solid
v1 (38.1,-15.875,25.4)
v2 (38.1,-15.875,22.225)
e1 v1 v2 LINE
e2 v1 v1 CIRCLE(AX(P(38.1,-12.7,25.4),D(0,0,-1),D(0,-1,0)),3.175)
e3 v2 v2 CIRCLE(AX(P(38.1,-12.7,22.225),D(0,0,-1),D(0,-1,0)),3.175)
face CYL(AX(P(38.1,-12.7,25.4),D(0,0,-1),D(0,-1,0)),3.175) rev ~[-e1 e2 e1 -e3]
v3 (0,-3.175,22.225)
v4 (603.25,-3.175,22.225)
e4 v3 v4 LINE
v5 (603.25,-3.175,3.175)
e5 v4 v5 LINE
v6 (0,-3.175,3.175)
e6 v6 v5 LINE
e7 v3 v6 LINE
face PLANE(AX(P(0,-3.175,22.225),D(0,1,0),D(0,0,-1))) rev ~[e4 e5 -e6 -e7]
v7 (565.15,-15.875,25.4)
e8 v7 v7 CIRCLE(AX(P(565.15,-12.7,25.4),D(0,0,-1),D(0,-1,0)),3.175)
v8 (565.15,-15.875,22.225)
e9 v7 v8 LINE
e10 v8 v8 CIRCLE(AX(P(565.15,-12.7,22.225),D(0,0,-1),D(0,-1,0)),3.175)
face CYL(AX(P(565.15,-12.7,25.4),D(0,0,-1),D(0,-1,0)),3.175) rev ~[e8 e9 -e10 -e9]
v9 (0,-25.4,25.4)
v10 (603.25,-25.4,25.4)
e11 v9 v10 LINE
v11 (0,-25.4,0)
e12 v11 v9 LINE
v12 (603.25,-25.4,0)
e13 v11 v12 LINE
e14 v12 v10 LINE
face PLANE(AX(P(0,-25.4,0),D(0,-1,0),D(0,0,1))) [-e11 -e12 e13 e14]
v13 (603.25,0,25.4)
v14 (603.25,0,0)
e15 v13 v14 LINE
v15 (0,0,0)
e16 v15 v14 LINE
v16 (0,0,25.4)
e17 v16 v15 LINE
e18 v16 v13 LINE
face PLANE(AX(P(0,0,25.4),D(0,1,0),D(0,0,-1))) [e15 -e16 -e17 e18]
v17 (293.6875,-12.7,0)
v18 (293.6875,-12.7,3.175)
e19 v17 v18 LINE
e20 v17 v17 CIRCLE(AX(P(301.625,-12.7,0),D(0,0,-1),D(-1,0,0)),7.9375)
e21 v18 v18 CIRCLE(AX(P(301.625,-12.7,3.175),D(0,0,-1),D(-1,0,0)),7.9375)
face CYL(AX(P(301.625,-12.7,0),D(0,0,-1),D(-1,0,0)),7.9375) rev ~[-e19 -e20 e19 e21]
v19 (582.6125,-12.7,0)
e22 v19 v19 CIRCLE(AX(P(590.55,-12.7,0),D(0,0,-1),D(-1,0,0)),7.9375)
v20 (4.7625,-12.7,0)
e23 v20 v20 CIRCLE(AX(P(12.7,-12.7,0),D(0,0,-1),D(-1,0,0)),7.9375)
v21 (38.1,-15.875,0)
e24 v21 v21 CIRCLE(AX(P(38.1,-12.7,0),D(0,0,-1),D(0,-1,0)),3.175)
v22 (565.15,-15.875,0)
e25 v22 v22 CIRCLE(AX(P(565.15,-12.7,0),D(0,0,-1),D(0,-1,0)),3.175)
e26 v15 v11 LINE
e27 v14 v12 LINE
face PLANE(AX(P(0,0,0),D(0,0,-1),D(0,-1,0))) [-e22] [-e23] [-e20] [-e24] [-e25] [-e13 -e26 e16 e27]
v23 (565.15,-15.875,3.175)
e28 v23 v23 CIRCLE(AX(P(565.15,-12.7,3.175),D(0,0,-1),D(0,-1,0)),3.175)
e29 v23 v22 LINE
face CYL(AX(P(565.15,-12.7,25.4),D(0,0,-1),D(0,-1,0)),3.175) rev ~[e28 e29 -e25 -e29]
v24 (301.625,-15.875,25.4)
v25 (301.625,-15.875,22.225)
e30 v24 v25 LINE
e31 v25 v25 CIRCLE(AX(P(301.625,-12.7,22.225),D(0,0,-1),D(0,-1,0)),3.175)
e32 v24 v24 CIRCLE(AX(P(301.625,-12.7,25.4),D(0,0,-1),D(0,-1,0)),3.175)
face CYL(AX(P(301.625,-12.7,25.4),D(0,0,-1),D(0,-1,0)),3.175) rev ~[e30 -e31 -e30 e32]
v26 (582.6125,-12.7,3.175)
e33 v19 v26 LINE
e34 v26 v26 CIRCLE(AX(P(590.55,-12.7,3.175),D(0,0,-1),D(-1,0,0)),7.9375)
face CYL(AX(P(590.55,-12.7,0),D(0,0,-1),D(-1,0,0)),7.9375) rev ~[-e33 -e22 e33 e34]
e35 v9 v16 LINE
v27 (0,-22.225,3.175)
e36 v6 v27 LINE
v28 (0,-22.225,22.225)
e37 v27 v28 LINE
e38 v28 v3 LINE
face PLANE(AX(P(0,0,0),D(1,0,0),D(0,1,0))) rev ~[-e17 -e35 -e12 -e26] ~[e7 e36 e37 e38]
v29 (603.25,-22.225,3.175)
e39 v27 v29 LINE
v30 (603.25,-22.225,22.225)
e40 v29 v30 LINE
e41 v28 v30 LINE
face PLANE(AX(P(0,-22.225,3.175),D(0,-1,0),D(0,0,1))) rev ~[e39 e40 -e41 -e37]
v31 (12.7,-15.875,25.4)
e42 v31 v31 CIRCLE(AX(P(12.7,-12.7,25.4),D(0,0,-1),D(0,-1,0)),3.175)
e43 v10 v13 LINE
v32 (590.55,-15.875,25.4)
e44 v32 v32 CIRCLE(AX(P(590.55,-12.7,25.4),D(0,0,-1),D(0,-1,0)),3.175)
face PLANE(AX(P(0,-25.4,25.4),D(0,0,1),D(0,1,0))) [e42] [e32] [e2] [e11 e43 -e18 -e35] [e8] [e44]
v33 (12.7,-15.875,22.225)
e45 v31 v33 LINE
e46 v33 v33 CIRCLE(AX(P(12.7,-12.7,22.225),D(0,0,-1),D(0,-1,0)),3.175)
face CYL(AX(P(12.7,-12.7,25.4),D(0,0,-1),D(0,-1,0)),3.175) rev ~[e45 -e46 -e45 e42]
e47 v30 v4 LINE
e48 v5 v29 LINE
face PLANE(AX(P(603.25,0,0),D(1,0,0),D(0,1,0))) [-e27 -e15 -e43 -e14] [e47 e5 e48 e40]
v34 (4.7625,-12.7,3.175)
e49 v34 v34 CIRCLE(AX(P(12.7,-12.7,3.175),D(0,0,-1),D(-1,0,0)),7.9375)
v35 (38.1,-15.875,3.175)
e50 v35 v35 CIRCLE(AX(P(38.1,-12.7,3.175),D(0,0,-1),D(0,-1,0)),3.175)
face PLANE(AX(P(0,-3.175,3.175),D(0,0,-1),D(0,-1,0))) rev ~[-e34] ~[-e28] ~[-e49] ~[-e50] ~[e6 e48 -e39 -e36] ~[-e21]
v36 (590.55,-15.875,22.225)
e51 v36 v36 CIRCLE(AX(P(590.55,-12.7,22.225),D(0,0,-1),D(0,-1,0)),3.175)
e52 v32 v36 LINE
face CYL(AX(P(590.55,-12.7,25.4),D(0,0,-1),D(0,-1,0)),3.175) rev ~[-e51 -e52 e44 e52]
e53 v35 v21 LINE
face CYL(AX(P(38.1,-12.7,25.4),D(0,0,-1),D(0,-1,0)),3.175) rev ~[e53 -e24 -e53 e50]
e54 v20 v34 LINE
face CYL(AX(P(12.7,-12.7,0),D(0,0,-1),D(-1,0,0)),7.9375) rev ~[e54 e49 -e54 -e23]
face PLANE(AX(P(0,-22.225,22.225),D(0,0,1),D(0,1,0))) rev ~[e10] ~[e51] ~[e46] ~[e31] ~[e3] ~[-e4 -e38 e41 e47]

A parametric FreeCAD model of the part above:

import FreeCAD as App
import Part
import Sketcher
from FreeCAD import Vector
Q = App.Units.Quantity

doc = App.newDocument("Part")
body = doc.addObject("PartDesign::Body", "Body")

# Sketch on YZ plane
sketch1 = body.newObject("Sketcher::SketchObject", "Sketch")
sketch1.AttachmentSupport = (doc.getObject("YZ_Plane"), [""])
sketch1.MapMode = "FlatFace"
sketch1.addGeometry([
    Part.LineSegment(Vector(-25, 0, 0), Vector(0, 0, 0)),  # 0
    Part.LineSegment(Vector(0, 0, 0), Vector(0, 25, 0)),  # 1
    Part.LineSegment(Vector(0, 25, 0), Vector(-25, 25, 0)),  # 2
    Part.LineSegment(Vector(-25, 25, 0), Vector(-25, 0, 0)),  # 3
    Part.LineSegment(Vector(-3, 22, 0), Vector(-3, 3, 0)),  # 4
    Part.LineSegment(Vector(-3, 3, 0), Vector(-22, 3, 0)),  # 5
    Part.LineSegment(Vector(-22, 3, 0), Vector(-22, 22, 0)),  # 6
    Part.LineSegment(Vector(-22, 22, 0), Vector(-3, 22, 0)),  # 7
], False)
sketch1.addConstraint([
    Sketcher.Constraint("Coincident", 0, 2, 1, 1),
    Sketcher.Constraint("Coincident", 1, 2, 2, 1),
    Sketcher.Constraint("Coincident", 2, 2, 3, 1),
    Sketcher.Constraint("Coincident", 3, 2, 0, 1),
    Sketcher.Constraint("Coincident", 4, 2, 5, 1),
    Sketcher.Constraint("Coincident", 5, 2, 6, 1),
    Sketcher.Constraint("Coincident", 6, 2, 7, 1),
    Sketcher.Constraint("Coincident", 7, 2, 4, 1),
    Sketcher.Constraint("Horizontal", 0),
    Sketcher.Constraint("Vertical", 1),
    Sketcher.Constraint("Horizontal", 2),
    Sketcher.Constraint("Vertical", 3),
    Sketcher.Constraint("Vertical", 4),
    Sketcher.Constraint("Horizontal", 5),
    Sketcher.Constraint("Vertical", 6),
    Sketcher.Constraint("Horizontal", 7),
    Sketcher.Constraint("Coincident", 0, 2, -1, 1),
    Sketcher.Constraint("Equal", 2, 1),
    Sketcher.Constraint("Equal", 7, 4),
    Sketcher.Constraint("DistanceX", 0, 1, 0, 2, Q("1 in")),
    Sketcher.Constraint("DistanceX", 5, 2, 5, 1, Q("0.75 in")),
    Sketcher.Constraint("DistanceX", 4, 2, -1, 1, Q("0.125 in")),
    Sketcher.Constraint("DistanceY", -1, 1, 4, 2, Q("0.125 in")),
])
pad1 = body.newObject("PartDesign::Pad", "Pad")
pad1.Profile = sketch1
pad1.Length = Q("23.75 in")

# Sketch on XY plane
sketch2 = body.newObject("Sketcher::SketchObject", "Sketch001")
sketch2.AttachmentSupport = (doc.getObject("XY_Plane"), [""])
sketch2.MapMode = "FlatFace"
sketch2.AttachmentOffset = App.Placement(Vector(0, 0, 1 * 25.4), App.Rotation())
sketch2.addGeometry([
    Part.Circle(Vector(12.7, -12.7, 0), Vector(0, 0, 1), 3.2),
    Part.Circle(Vector(301.6, -12.7, 0), Vector(0, 0, 1), 3.2),
    Part.Circle(Vector(590.5, -12.7, 0), Vector(0, 0, 1), 3.2),
], False)
sketch2.addConstraint([
    Sketcher.Constraint("Equal", 0, 1),
    Sketcher.Constraint("Equal", 1, 2),
    Sketcher.Constraint("Horizontal", 0, 3, 1, 3),
    Sketcher.Constraint("Horizontal", 1, 3, 2, 3),
    Sketcher.Constraint("Diameter", 0, Q("0.25 in")),
    Sketcher.Constraint("DistanceX", -1, 1, 0, 3, Q("0.5 in")),
    Sketcher.Constraint("DistanceY", 0, 3, -1, 1, Q("0.5 in")),
    Sketcher.Constraint("DistanceX", -1, 1, 2, 3, Q("23.25 in")),
    Sketcher.Constraint("DistanceX", -1, 1, 1, 3, Q("11.875 in")),
])
doc.recompute()
hole = body.newObject("PartDesign::Hole", "Hole")
hole.Profile = sketch2
hole.ThreadType = "None"
hole.Diameter = Q("0.25 in")
hole.DepthType = "ThroughAll"

# Sketch on XY plane
sketch3 = body.newObject("Sketcher::SketchObject", "Sketch002")
sketch3.AttachmentSupport = (doc.getObject("XY_Plane"), [""])
sketch3.MapMode = "FlatFace"
sketch3.addGeometry([
    Part.Circle(Vector(12.7, -12.7, 0), Vector(0, 0, 1), 7.9),  # 0
    Part.Circle(Vector(12.7, -12.7, 0), Vector(0, 0, 1), 3.2),  # 1
    Part.Circle(Vector(301.6, -12.7, 0), Vector(0, 0, 1), 7.9),  # 2
    Part.Circle(Vector(301.6, -12.7, 0), Vector(0, 0, 1), 3.2),  # 3
    Part.Circle(Vector(590.5, -12.7, 0), Vector(0, 0, 1), 7.9),  # 4
    Part.Circle(Vector(590.5, -12.7, 0), Vector(0, 0, 1), 3.2),  # 5
], False)
sketch3.addConstraint([
    Sketcher.Constraint("Coincident", 1, 3, 0, 3),
    Sketcher.Constraint("Coincident", 3, 3, 2, 3),
    Sketcher.Constraint("Coincident", 5, 3, 4, 3),
    Sketcher.Constraint("Equal", 0, 2),
    Sketcher.Constraint("Equal", 1, 3),
    Sketcher.Constraint("Equal", 2, 4),
    Sketcher.Constraint("Equal", 3, 5),
    Sketcher.Constraint("Horizontal", 1, 3, 2, 3),
    Sketcher.Constraint("Horizontal", 3, 3, 4, 3),
    Sketcher.Constraint("Diameter", 0, Q("0.625 in")),
    Sketcher.Constraint("Diameter", 1, Q("0.25 in")),
    Sketcher.Constraint("DistanceX", -1, 1, 0, 3, Q("0.5 in")),
    Sketcher.Constraint("DistanceY", 0, 3, -1, 1, Q("0.5 in")),
    Sketcher.Constraint("DistanceX", -1, 1, 4, 3, Q("23.25 in")),
    Sketcher.Constraint("DistanceX", -1, 1, 2, 3, Q("11.875 in")),
])
pocket1 = body.newObject("PartDesign::Pocket", "Pocket")
pocket1.Profile = sketch3
pocket1.Length = Q("0.5 in")
pocket1.Reversed = True

# Sketch on XY plane
sketch4 = body.newObject("Sketcher::SketchObject", "Sketch003")
sketch4.AttachmentSupport = (doc.getObject("XY_Plane"), [""])
sketch4.MapMode = "FlatFace"
sketch4.AttachmentOffset = App.Placement(Vector(0, 0, 1 * 25.4), App.Rotation())
sketch4.addGeometry([
    Part.Circle(Vector(38.1, -12.7, 0), Vector(0, 0, 1), 3.2),
    Part.Circle(Vector(565.1, -12.7, 0), Vector(0, 0, 1), 3.2),
], False)
sketch4.addConstraint([
    Sketcher.Constraint("Equal", 0, 1),
    Sketcher.Constraint("Horizontal", 0, 3, 1, 3),
    Sketcher.Constraint("Diameter", 0, Q("0.25 in")),
    Sketcher.Constraint("DistanceX", -1, 1, 0, 3, Q("1.5 in")),
    Sketcher.Constraint("DistanceY", 0, 3, -1, 1, Q("0.5 in")),
    Sketcher.Constraint("DistanceX", -1, 1, 1, 3, Q("22.25 in")),
])
doc.recompute()
hole2 = body.newObject("PartDesign::Hole", "Hole001")
hole2.Profile = sketch4
hole2.ThreadType = "None"
hole2.Diameter = Q("0.25 in")
hole2.DepthType = "ThroughAll"

doc.recompute()
